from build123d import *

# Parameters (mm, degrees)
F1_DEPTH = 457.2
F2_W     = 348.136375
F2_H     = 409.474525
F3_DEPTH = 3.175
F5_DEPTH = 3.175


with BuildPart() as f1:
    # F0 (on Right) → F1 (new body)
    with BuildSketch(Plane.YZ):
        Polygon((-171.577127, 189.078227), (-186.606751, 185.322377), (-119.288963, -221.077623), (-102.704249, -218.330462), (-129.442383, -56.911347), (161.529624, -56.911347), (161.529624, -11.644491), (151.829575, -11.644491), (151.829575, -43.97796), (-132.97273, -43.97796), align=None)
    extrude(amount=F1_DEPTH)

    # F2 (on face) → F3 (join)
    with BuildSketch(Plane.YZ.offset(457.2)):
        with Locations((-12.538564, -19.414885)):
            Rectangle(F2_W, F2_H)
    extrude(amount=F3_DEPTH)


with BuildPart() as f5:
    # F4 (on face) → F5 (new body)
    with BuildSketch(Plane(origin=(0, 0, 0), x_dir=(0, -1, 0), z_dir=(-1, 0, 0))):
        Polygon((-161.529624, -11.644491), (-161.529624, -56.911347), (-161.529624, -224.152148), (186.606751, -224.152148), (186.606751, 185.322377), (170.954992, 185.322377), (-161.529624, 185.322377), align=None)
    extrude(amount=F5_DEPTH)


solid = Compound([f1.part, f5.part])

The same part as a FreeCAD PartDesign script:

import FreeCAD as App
import Part
import Sketcher
Q = App.Units.Quantity

doc = App.newDocument("Part")
body = doc.addObject("PartDesign::Body", "Body")

sketch1 = doc.addObject("Sketcher::SketchObject", "Sketch")
body.addObject(sketch1)
sketch1.AttachmentSupport = (doc.YZ_Plane, [""])
sketch1.MapMode = "FlatFace"
sketch1.addGeometry(Part.LineSegment(App.Vector(-172, 189, 0), App.Vector(-187, 185, 0)), False)
sketch1.addGeometry(Part.LineSegment(App.Vector(-187, 185, 0), App.Vector(-119, -221, 0)), False)
sketch1.addGeometry(Part.LineSegment(App.Vector(-119, -221, 0), App.Vector(-103, -218, 0)), False)
sketch1.addGeometry(Part.LineSegment(App.Vector(-103, -218, 0), App.Vector(-129, -57, 0)), False)
sketch1.addGeometry(Part.LineSegment(App.Vector(-129, -57, 0), App.Vector(162, -57, 0)), False)
sketch1.addGeometry(Part.LineSegment(App.Vector(162, -57, 0), App.Vector(162, -12, 0)), False)
sketch1.addGeometry(Part.LineSegment(App.Vector(162, -12, 0), App.Vector(152, -12, 0)), False)
sketch1.addGeometry(Part.LineSegment(App.Vector(152, -12, 0), App.Vector(152, -44, 0)), False)
sketch1.addGeometry(Part.LineSegment(App.Vector(152, -44, 0), App.Vector(-133, -44, 0)), False)
sketch1.addGeometry(Part.LineSegment(App.Vector(-133, -44, 0), App.Vector(-172, 189, 0)), False)
sketch1.addConstraint(Sketcher.Constraint("Coincident", 0, 2, 1, 1))
sketch1.addConstraint(Sketcher.Constraint("Coincident", 1, 2, 2, 1))
sketch1.addConstraint(Sketcher.Constraint("Coincident", 2, 2, 3, 1))
sketch1.addConstraint(Sketcher.Constraint("Coincident", 3, 2, 4, 1))
sketch1.addConstraint(Sketcher.Constraint("Coincident", 4, 2, 5, 1))
sketch1.addConstraint(Sketcher.Constraint("Coincident", 5, 2, 6, 1))
sketch1.addConstraint(Sketcher.Constraint("Coincident", 6, 2, 7, 1))
sketch1.addConstraint(Sketcher.Constraint("Coincident", 7, 2, 8, 1))
sketch1.addConstraint(Sketcher.Constraint("Coincident", 8, 2, 9, 1))
sketch1.addConstraint(Sketcher.Constraint("Coincident", 9, 2, 0, 1))
sketch1.addConstraint(Sketcher.Constraint("Horizontal", 4))
sketch1.addConstraint(Sketcher.Constraint("Vertical", 5))
sketch1.addConstraint(Sketcher.Constraint("Horizontal", 6))
sketch1.addConstraint(Sketcher.Constraint("Vertical", 7))
sketch1.addConstraint(Sketcher.Constraint("Horizontal", 8))
sketch1.addConstraint(Sketcher.Constraint("Perpendicular", 1, 2))
sketch1.addConstraint(Sketcher.Constraint("Perpendicular", 2, 3))
sketch1.addConstraint(Sketcher.Constraint("Parallel", 3, 9))
sketch1.addConstraint(Sketcher.Constraint("DistanceY", 1, 2, 0, 2, Q("16 in")))
sketch1.addConstraint(Sketcher.Constraint("Distance", 2, Q("16.8107 mm")))
sketch1.addConstraint(Sketcher.Constraint("DistanceX", 6, 2, 6, 1, Q("9.700049 mm")))
sketch1.addConstraint(Sketcher.Constraint("DistanceY", 7, 2, 7, 1, Q("32.333469 mm")))
sketch1.addConstraint(Sketcher.Constraint("DistanceX", 0, 2, 2, 2, Q("83.902502 mm")))
sketch1.addConstraint(Sketcher.Constraint("DistanceX", 9, 2, 6, 2, Q("323.406702 mm")))
sketch1.addConstraint(Sketcher.Constraint("DistanceX", 4, 1, 4, 2, Q("290.972007 mm")))
sketch1.addConstraint(Sketcher.Constraint("DistanceX", 8, 2, 8, 1, Q("284.802305 mm")))
sketch1.addConstraint(Sketcher.Constraint("DistanceY", 5, 1, 5, 2, Q("45.266856 mm")))
sketch1.addConstraint(Sketcher.Constraint("DistanceX", 0, 2, -1, 1, Q("186.606751 mm")))
sketch1.addConstraint(Sketcher.Constraint("DistanceY", 5, 2, -1, 1, Q("11.644491 mm")))
sketch1.addConstraint(Sketcher.Constraint("DistanceX", 8, 2, -1, 1, Q("132.97273 mm")))
pad1 = doc.addObject("PartDesign::Pad", "Pad")
body.addObject(pad1)
pad1.Profile = sketch1
pad1.Length = Q("18 in")

sketch2 = doc.addObject("Sketcher::SketchObject", "Sketch001")
body.addObject(sketch2)
sketch2.AttachmentSupport = (doc.YZ_Plane, [""])
sketch2.MapMode = "FlatFace"
sketch2.AttachmentOffset = App.Placement(App.Vector(0, 0, 18 * 25.4), App.Rotation())
sketch2.addGeometry(Part.LineSegment(App.Vector(-187, 185, 0), App.Vector(-187, -224, 0)), False)
sketch2.addGeometry(Part.LineSegment(App.Vector(-187, -224, 0), App.Vector(162, -224, 0)), False)
sketch2.addGeometry(Part.LineSegment(App.Vector(162, -224, 0), App.Vector(162, 185, 0)), False)
sketch2.addGeometry(Part.LineSegment(App.Vector(162, 185, 0), App.Vector(-187, 185, 0)), False)
sketch2.addConstraint(Sketcher.Constraint("Coincident", 0, 2, 1, 1))
sketch2.addConstraint(Sketcher.Constraint("Coincident", 1, 2, 2, 1))
sketch2.addConstraint(Sketcher.Constraint("Coincident", 2, 2, 3, 1))
sketch2.addConstraint(Sketcher.Constraint("Coincident", 3, 2, 0, 1))
sketch2.addConstraint(Sketcher.Constraint("Vertical", 0))
sketch2.addConstraint(Sketcher.Constraint("Horizontal", 1))
sketch2.addConstraint(Sketcher.Constraint("Vertical", 2))
sketch2.addConstraint(Sketcher.Constraint("Horizontal", 3))
sketch2.addConstraint(Sketcher.Constraint("DistanceX", 1, 1, 1, 2, Q("348.136375 mm")))
sketch2.addConstraint(Sketcher.Constraint("DistanceY", 0, 2, 0, 1, Q("409.474525 mm")))
sketch2.addConstraint(Sketcher.Constraint("DistanceX", 0, 2, -1, 1, Q("186.606752 mm")))
sketch2.addConstraint(Sketcher.Constraint("DistanceY", 0, 2, -1, 1, Q("224.152148 mm")))
pad2 = doc.addObject("PartDesign::Pad", "Pad001")
body.addObject(pad2)
pad2.Profile = sketch2
pad2.Length = Q("0.125 in")
body2 = doc.addObject("PartDesign::Body", "Body001")

sketch3 = doc.addObject("Sketcher::SketchObject", "Sketch002")
body2.addObject(sketch3)
sketch3.AttachmentSupport = (doc.getObject("YZ_Plane001"), [""])
sketch3.MapMode = "FlatFace"
sketch3.addGeometry(Part.LineSegment(App.Vector(162, -224, 0), App.Vector(-187, -224, 0)), False)
sketch3.addGeometry(Part.LineSegment(App.Vector(-187, -224, 0), App.Vector(-187, 185, 0)), False)
sketch3.addGeometry(Part.LineSegment(App.Vector(-187, 185, 0), App.Vector(162, 185, 0)), False)
sketch3.addGeometry(Part.LineSegment(App.Vector(162, 185, 0), App.Vector(162, -224, 0)), False)
sketch3.addConstraint(Sketcher.Constraint("Coincident", 0, 2, 1, 1))
sketch3.addConstraint(Sketcher.Constraint("Coincident", 1, 2, 2, 1))
sketch3.addConstraint(Sketcher.Constraint("Coincident", 2, 2, 3, 1))
sketch3.addConstraint(Sketcher.Constraint("Coincident", 3, 2, 0, 1))
sketch3.addConstraint(Sketcher.Constraint("Horizontal", 0))
sketch3.addConstraint(Sketcher.Constraint("Vertical", 1))
sketch3.addConstraint(Sketcher.Constraint("Horizontal", 2))
sketch3.addConstraint(Sketcher.Constraint("Vertical", 3))
sketch3.addConstraint(Sketcher.Constraint("DistanceX", 0, 2, 0, 1, Q("348.136375 mm")))
sketch3.addConstraint(Sketcher.Constraint("DistanceY", 1, 1, 1, 2, Q("409.474525 mm")))
sketch3.addConstraint(Sketcher.Constraint("DistanceX", 0, 2, -1, 1, Q("186.606751 mm")))
sketch3.addConstraint(Sketcher.Constraint("DistanceY", 0, 2, -1, 1, Q("224.152148 mm")))
pad3 = doc.addObject("PartDesign::Pad", "Pad002")
body2.addObject(pad3)
pad3.Profile = sketch3
pad3.Length = Q("0.125 in")
pad3.Reversed = True

doc.recompute()
